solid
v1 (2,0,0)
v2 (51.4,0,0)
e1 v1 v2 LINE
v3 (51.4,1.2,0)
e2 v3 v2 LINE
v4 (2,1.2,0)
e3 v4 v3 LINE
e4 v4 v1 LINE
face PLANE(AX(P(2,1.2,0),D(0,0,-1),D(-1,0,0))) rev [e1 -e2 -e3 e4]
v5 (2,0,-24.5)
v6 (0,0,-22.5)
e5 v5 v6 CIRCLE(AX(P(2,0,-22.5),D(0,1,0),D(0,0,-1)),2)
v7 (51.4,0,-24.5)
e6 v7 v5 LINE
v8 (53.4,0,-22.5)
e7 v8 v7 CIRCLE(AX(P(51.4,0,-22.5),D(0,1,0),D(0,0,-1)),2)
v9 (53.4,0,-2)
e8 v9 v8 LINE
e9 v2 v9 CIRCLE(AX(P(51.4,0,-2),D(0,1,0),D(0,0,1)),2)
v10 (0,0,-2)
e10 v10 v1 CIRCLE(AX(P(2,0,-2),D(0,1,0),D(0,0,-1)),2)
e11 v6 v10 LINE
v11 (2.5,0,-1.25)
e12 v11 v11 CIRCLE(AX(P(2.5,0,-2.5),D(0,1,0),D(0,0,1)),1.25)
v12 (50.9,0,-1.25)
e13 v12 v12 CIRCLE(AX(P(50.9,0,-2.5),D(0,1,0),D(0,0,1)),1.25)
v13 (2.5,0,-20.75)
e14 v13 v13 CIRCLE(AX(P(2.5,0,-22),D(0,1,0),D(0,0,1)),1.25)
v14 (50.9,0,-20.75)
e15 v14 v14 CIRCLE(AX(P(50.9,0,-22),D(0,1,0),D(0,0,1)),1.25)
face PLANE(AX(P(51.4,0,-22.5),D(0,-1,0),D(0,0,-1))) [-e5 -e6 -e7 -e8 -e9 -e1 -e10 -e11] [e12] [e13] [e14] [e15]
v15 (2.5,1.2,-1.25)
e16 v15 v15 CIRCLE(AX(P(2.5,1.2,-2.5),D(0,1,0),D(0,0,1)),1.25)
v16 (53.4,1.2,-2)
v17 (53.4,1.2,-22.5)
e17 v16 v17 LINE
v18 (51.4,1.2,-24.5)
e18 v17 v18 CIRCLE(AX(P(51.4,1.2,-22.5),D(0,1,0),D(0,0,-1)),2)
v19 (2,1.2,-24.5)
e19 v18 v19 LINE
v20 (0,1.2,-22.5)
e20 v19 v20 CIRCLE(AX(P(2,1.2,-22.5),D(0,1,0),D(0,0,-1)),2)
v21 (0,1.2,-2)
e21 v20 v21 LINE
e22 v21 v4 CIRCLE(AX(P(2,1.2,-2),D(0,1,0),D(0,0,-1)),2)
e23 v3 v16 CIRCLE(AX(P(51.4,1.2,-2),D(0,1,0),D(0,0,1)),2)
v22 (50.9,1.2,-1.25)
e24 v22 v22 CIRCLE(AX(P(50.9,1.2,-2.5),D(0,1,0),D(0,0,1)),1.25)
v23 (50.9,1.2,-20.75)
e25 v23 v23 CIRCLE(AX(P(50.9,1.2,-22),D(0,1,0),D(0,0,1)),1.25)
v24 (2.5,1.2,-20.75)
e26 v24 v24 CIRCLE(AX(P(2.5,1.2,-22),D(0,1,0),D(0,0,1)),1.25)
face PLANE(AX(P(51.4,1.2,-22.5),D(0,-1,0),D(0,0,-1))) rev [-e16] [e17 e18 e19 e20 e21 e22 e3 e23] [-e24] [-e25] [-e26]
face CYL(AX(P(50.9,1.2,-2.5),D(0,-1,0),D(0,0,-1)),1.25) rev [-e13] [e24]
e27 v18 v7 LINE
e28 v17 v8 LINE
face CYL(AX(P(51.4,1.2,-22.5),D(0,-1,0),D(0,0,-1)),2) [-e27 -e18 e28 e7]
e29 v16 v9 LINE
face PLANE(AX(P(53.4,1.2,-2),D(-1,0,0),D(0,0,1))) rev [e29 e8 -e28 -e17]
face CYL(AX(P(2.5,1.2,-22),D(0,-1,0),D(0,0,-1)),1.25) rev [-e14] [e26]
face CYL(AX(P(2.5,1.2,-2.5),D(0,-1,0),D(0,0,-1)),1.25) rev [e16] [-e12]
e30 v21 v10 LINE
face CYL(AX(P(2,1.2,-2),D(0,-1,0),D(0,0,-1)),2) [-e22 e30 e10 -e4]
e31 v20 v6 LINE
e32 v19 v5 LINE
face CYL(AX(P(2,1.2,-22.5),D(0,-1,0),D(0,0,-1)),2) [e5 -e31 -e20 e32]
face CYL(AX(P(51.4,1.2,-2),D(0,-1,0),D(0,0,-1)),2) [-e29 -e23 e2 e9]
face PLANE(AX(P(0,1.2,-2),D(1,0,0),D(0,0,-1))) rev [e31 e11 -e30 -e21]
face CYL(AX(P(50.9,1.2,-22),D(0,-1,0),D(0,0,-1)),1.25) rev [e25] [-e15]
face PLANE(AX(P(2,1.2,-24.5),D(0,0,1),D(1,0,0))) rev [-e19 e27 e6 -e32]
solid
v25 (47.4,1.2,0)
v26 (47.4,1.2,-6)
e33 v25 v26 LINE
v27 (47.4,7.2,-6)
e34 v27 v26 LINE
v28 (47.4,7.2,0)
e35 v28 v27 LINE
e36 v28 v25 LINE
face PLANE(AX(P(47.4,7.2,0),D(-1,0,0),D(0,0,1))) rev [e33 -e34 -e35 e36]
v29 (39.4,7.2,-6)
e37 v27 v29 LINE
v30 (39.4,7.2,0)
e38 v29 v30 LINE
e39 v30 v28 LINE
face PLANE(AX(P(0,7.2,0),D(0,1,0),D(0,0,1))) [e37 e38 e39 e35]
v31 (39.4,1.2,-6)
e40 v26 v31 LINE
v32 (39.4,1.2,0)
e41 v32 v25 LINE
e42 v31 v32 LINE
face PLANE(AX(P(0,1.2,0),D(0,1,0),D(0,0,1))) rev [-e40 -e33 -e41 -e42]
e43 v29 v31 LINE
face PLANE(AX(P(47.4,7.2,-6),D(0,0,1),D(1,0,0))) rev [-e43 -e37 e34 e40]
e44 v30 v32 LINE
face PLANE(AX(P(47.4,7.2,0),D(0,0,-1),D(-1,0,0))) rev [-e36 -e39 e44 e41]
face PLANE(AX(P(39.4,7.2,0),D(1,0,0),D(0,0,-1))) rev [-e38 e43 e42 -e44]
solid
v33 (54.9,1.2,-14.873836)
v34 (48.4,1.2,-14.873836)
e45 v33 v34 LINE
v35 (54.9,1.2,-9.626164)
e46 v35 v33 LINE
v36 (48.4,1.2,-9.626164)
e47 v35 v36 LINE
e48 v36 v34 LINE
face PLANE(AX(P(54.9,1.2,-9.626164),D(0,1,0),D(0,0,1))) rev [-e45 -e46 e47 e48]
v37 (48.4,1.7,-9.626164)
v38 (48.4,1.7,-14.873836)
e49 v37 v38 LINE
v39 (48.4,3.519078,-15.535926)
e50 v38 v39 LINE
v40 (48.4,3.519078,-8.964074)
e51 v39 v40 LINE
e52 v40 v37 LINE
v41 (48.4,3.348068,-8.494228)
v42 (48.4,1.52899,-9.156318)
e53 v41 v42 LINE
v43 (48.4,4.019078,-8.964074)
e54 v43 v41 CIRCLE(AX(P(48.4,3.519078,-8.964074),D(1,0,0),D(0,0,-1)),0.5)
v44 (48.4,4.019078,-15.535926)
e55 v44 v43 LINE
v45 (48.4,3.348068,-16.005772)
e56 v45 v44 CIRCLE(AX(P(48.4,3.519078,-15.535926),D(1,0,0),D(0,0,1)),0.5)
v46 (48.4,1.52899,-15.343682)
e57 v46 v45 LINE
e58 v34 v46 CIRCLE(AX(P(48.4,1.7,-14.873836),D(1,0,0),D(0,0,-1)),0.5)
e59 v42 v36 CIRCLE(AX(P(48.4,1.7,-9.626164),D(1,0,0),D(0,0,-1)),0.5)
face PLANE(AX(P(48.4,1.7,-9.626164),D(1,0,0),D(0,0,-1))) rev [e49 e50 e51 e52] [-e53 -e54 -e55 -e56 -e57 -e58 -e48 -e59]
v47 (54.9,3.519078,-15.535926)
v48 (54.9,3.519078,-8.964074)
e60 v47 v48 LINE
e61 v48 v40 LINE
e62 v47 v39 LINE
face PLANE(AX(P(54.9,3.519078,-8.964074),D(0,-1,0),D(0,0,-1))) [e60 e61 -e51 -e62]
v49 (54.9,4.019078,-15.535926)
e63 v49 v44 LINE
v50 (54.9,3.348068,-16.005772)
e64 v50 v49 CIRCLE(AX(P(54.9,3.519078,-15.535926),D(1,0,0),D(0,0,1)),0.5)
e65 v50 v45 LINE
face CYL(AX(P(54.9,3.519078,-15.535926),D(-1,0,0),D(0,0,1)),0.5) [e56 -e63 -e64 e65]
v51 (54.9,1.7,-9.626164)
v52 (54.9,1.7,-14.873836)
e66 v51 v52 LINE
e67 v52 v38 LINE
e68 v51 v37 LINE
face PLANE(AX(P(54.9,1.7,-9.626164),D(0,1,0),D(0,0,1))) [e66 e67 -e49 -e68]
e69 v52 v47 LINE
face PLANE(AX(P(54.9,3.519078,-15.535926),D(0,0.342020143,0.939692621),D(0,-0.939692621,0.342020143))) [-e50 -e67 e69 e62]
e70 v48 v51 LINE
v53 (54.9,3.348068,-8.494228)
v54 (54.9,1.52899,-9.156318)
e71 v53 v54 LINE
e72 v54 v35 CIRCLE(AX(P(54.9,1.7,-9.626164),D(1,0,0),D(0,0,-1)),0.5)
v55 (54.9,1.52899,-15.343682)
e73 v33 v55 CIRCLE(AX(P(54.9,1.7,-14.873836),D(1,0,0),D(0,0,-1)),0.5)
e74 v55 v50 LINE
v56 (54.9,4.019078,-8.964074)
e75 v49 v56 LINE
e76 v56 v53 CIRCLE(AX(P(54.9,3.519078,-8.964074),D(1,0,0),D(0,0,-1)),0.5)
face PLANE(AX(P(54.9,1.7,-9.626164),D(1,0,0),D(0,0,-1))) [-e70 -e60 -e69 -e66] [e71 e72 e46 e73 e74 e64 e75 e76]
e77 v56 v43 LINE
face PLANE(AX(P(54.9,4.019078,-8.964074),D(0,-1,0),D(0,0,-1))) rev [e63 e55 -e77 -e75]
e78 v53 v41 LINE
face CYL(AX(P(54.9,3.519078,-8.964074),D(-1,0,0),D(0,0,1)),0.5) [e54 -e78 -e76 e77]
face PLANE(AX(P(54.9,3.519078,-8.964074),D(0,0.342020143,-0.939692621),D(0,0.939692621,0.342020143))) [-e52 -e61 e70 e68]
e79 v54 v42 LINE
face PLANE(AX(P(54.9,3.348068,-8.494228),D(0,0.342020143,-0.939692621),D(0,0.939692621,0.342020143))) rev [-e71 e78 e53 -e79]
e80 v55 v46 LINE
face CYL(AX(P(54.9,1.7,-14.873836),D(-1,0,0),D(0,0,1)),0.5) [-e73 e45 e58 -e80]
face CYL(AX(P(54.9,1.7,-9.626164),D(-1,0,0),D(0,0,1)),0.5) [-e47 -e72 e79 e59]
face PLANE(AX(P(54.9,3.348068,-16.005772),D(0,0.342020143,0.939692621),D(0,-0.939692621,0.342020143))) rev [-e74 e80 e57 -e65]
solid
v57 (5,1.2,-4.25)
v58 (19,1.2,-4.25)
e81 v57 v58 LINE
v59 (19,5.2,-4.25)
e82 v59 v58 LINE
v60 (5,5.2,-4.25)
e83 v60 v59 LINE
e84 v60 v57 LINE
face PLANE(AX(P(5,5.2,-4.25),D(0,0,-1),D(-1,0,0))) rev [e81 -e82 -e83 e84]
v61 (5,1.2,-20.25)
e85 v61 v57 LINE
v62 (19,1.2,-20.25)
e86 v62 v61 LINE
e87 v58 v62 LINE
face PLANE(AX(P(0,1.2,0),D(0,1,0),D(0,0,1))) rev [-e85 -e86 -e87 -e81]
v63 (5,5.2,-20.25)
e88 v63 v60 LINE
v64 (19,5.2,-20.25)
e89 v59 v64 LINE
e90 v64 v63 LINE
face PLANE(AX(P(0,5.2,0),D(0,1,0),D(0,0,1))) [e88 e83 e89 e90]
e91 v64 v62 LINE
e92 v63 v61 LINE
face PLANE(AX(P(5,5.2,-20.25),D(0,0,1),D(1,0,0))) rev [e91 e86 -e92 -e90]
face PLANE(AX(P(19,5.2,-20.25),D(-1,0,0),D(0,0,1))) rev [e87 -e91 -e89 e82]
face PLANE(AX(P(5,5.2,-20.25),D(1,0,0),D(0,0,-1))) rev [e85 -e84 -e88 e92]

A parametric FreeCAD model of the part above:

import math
import FreeCAD as App
import Part
import Sketcher

V = App.Vector
Q = App.Units.Quantity


def add_polygon(sketch, points):
    """Adds a closed chain of lines whose ends are joined by coincident constraints."""
    first, n = sketch.GeometryCount, len(points)
    for a, b in zip(points, points[1:] + points[:1]):
        sketch.addGeometry(Part.LineSegment(App.Vector(*a, 0), App.Vector(*b, 0)), False)
    for i in range(n):
        sketch.addConstraint(Sketcher.Constraint("Coincident", first + i, 2, first + (i + 1) % n, 1))

doc = App.newDocument("Part")
body = doc.addObject("PartDesign::Body", "Body")

sketch1 = body.newObject("Sketcher::SketchObject", "Sketch")
sketch1.AttachmentSupport = (doc.getObject("XZ_Plane"), [""])
sketch1.MapMode = "FlatFace"
sketch1.addGeometry([
    Part.LineSegment(V(2, 0, 0), V(51.4, 0, 0)),
    Part.ArcOfCircle(Part.Circle(V(51.4, -2, 0), V(0, 0, 1), 2), math.radians(0), math.radians(90)),
    Part.LineSegment(V(53.4, -2, 0), V(53.4, -22.5, 0)),
    Part.ArcOfCircle(Part.Circle(V(51.4, -22.5, 0), V(0, 0, 1), 2), math.radians(-90), math.radians(0)),
    Part.LineSegment(V(51.4, -24.5, 0), V(2, -24.5, 0)),
    Part.ArcOfCircle(Part.Circle(V(2, -22.5, 0), V(0, 0, 1), 2), math.radians(-180), math.radians(-90)),
    Part.LineSegment(V(0, -22.5, 0), V(0, -2, 0)),
    Part.ArcOfCircle(Part.Circle(V(2, -2, 0), V(0, 0, 1), 2), math.radians(90), math.radians(180)),
    Part.Circle(V(2.5, -2.5, 0), V(0, 0, 1), 1.25),
    Part.Circle(V(50.9, -2.5, 0), V(0, 0, 1), 1.25),
    Part.Circle(V(2.5, -22, 0), V(0, 0, 1), 1.25),
    Part.Circle(V(50.9, -22, 0), V(0, 0, 1), 1.25),
], False)
sketch1.addConstraint([
    Sketcher.Constraint("Tangent", 0, 2, 1, 2),
    Sketcher.Constraint("Tangent", 1, 1, 2, 1),
    Sketcher.Constraint("Tangent", 2, 2, 3, 2),
    Sketcher.Constraint("Tangent", 3, 1, 4, 1),
    Sketcher.Constraint("Tangent", 4, 2, 5, 2),
    Sketcher.Constraint("Tangent", 5, 1, 6, 1),
    Sketcher.Constraint("Tangent", 6, 2, 7, 2),
    Sketcher.Constraint("Tangent", 7, 1, 0, 1),
    Sketcher.Constraint("Horizontal", 0),
    Sketcher.Constraint("Vertical", 2),
    Sketcher.Constraint("Horizontal", 4),
    Sketcher.Constraint("Vertical", 6),
    Sketcher.Constraint("Equal", 1, 3),
    Sketcher.Constraint("Equal", 3, 5),
    Sketcher.Constraint("Equal", 5, 7),
    Sketcher.Constraint("Equal", 8, 9),
    Sketcher.Constraint("Equal", 9, 10),
    Sketcher.Constraint("Equal", 10, 11),
    Sketcher.Constraint("PointOnObject", 0, 2, -1),
    Sketcher.Constraint("PointOnObject", 5, 1, -2),
    Sketcher.Constraint("Horizontal", 8, 3, 9, 3),
    Sketcher.Constraint("Horizontal", 10, 3, 11, 3),
    Sketcher.Constraint("Vertical", 8, 3, 10, 3),
    Sketcher.Constraint("Vertical", 9, 3, 11, 3),
    Sketcher.Constraint("Radius", 1, Q("2 mm")),
    Sketcher.Constraint("Diameter", 8, Q("2.5 mm")),
    Sketcher.Constraint("DistanceX", 0, 1, 0, 2, Q("49.4 mm")),
    Sketcher.Constraint("DistanceY", 2, 2, 2, 1, Q("20.5 mm")),
    Sketcher.Constraint("DistanceY", 10, 3, -1, 1, Q("22 mm")),
    Sketcher.Constraint("DistanceY", 5, 3, 8, 3, Q("20 mm")),
    Sketcher.Constraint("DistanceX", -1, 1, 8, 3, Q("2.5 mm")),
    Sketcher.Constraint("DistanceX", -1, 1, 9, 3, Q("50.9 mm")),
])
pad1 = body.newObject("PartDesign::Pad", "Pad")
pad1.Profile = sketch1
pad1.Length = 1.2
pad1.Reversed = True
body2 = doc.addObject("PartDesign::Body", "Body001")

sketch2 = body2.newObject("Sketcher::SketchObject", "Sketch001")
sketch2.AttachmentSupport = (doc.getObject("YZ_Plane001"), [""])
sketch2.MapMode = "FlatFace"
sketch2.AttachmentOffset = App.Placement(V(0, 0, 53.4), App.Rotation())
sketch2.addGeometry(Part.LineSegment(V(4.019078, -15.535926, 0), V(4.019078, -8.964074, 0)), False)
sketch2.addGeometry(Part.ArcOfCircle(Part.Circle(V(3.519078, -8.964074, 0), V(0, 0, 1), 0.5), math.radians(0), math.radians(110)), False)
sketch2.addGeometry(Part.LineSegment(V(3.348068, -8.494228, 0), V(1.52899, -9.156318, 0)), False)
sketch2.addGeometry(Part.ArcOfCircle(Part.Circle(V(1.7, -9.626164, 0), V(0, 0, 1), 0.5), math.radians(110), math.radians(180)), False)
sketch2.addGeometry(Part.LineSegment(V(1.2, -9.626164, 0), V(1.2, -14.873836, 0)), False)
sketch2.addGeometry(Part.ArcOfCircle(Part.Circle(V(1.7, -14.873836, 0), V(0, 0, 1), 0.5), math.radians(180), math.radians(250)), False)
sketch2.addGeometry(Part.LineSegment(V(1.52899, -15.343682, 0), V(3.348068, -16.005772, 0)), False)
sketch2.addGeometry(Part.ArcOfCircle(Part.Circle(V(3.519078, -15.535926, 0), V(0, 0, 1), 0.5), math.radians(-110), math.radians(0)), False)
add_polygon(sketch2, [(3.519078, -8.964074), (3.519078, -15.535926), (1.7, -14.873836), (1.7, -9.626164)])
sketch2.addConstraint([
    Sketcher.Constraint("Tangent", 0, 2, 1, 1),
    Sketcher.Constraint("Tangent", 1, 2, 2, 1),
    Sketcher.Constraint("Tangent", 2, 2, 3, 1),
    Sketcher.Constraint("Tangent", 3, 2, 4, 1),
    Sketcher.Constraint("Tangent", 4, 2, 5, 1),
    Sketcher.Constraint("Tangent", 5, 2, 6, 1),
    Sketcher.Constraint("Tangent", 6, 2, 7, 1),
    Sketcher.Constraint("Tangent", 7, 2, 0, 1),
    Sketcher.Constraint("Vertical", 0),
    Sketcher.Constraint("Vertical", 4),
    Sketcher.Constraint("Vertical", 8),
    Sketcher.Constraint("Vertical", 10),
    Sketcher.Constraint("Coincident", 8, 2, 7, 3),
    Sketcher.Constraint("Coincident", 9, 2, 5, 3),
    Sketcher.Constraint("Coincident", 10, 2, 3, 3),
    Sketcher.Constraint("Coincident", 11, 2, 1, 3),
    Sketcher.Constraint("Equal", 1, 3),
    Sketcher.Constraint("Vertical", 2, 2, 5, 2),
    Sketcher.Constraint("Radius", 1, Q("0.5 mm")),
    Sketcher.Constraint("Angle", 2, Q("-160 deg")),
    Sketcher.Constraint("DistanceX", -1, 1, 3, 3, Q("1.7 mm")),
    Sketcher.Constraint("DistanceY", 0, 1, 0, 2, Q("6.571852 mm")),
    Sketcher.Constraint("DistanceY", 4, 2, 4, 1, Q("5.247672 mm")),
    Sketcher.Constraint("DistanceY", 1, 3, -1, 1, Q("8.964074 mm")),
])
pad2 = body2.newObject("PartDesign::Pad", "Pad001")
pad2.Profile = sketch2
pad2.Type = "TwoLengths"
pad2.Length = 1.5
pad2.Length2 = 5
body3 = doc.addObject("PartDesign::Body", "Body002")

sketch3 = body3.newObject("Sketcher::SketchObject", "Sketch002")
sketch3.AttachmentSupport = (doc.getObject("XZ_Plane002"), [""])
sketch3.MapMode = "FlatFace"
sketch3.AttachmentOffset = App.Placement(V(0, 0, -1.2), App.Rotation())
add_polygon(sketch3, [(5, -20.25), (5, -4.25), (19, -4.25), (19, -20.25)])
sketch3.addConstraint([
    Sketcher.Constraint("Vertical", 0),
    Sketcher.Constraint("Horizontal", 1),
    Sketcher.Constraint("Vertical", 2),
    Sketcher.Constraint("Horizontal", 3),
    Sketcher.Constraint("DistanceX", 1, 1, 1, 2, Q("14 mm")),
    Sketcher.Constraint("DistanceY", 0, 1, 0, 2, Q("16 mm")),
    Sketcher.Constraint("DistanceX", -1, 1, 0, 2, Q("5 mm")),
    Sketcher.Constraint("DistanceY", 0, 2, -1, 1, Q("4.25 mm")),
])
pad3 = body3.newObject("PartDesign::Pad", "Pad002")
pad3.Profile = sketch3
pad3.Length = 4
pad3.Reversed = True
body4 = doc.addObject("PartDesign::Body", "Body003")

sketch4 = body4.newObject("Sketcher::SketchObject", "Sketch003")
sketch4.AttachmentSupport = (doc.getObject("XZ_Plane003"), [""])
sketch4.MapMode = "FlatFace"
sketch4.AttachmentOffset = App.Placement(V(0, 0, -1.2), App.Rotation())
add_polygon(sketch4, [(39.4, -6), (39.4, 0), (47.4, 0), (47.4, -6)])
sketch4.addConstraint([
    Sketcher.Constraint("Vertical", 0),
    Sketcher.Constraint("Horizontal", 1),
    Sketcher.Constraint("Vertical", 2),
    Sketcher.Constraint("Horizontal", 3),
    Sketcher.Constraint("PointOnObject", 0, 2, -1),
    Sketcher.Constraint("DistanceX", 1, 1, 1, 2, Q("8 mm")),
    Sketcher.Constraint("DistanceY", 0, 1, 0, 2, Q("6 mm")),
    Sketcher.Constraint("DistanceX", -1, 1, 0, 2, Q("39.4 mm")),
])
pad4 = body4.newObject("PartDesign::Pad", "Pad003")
pad4.Profile = sketch4
pad4.Length = 6
pad4.Reversed = True

doc.recompute()
